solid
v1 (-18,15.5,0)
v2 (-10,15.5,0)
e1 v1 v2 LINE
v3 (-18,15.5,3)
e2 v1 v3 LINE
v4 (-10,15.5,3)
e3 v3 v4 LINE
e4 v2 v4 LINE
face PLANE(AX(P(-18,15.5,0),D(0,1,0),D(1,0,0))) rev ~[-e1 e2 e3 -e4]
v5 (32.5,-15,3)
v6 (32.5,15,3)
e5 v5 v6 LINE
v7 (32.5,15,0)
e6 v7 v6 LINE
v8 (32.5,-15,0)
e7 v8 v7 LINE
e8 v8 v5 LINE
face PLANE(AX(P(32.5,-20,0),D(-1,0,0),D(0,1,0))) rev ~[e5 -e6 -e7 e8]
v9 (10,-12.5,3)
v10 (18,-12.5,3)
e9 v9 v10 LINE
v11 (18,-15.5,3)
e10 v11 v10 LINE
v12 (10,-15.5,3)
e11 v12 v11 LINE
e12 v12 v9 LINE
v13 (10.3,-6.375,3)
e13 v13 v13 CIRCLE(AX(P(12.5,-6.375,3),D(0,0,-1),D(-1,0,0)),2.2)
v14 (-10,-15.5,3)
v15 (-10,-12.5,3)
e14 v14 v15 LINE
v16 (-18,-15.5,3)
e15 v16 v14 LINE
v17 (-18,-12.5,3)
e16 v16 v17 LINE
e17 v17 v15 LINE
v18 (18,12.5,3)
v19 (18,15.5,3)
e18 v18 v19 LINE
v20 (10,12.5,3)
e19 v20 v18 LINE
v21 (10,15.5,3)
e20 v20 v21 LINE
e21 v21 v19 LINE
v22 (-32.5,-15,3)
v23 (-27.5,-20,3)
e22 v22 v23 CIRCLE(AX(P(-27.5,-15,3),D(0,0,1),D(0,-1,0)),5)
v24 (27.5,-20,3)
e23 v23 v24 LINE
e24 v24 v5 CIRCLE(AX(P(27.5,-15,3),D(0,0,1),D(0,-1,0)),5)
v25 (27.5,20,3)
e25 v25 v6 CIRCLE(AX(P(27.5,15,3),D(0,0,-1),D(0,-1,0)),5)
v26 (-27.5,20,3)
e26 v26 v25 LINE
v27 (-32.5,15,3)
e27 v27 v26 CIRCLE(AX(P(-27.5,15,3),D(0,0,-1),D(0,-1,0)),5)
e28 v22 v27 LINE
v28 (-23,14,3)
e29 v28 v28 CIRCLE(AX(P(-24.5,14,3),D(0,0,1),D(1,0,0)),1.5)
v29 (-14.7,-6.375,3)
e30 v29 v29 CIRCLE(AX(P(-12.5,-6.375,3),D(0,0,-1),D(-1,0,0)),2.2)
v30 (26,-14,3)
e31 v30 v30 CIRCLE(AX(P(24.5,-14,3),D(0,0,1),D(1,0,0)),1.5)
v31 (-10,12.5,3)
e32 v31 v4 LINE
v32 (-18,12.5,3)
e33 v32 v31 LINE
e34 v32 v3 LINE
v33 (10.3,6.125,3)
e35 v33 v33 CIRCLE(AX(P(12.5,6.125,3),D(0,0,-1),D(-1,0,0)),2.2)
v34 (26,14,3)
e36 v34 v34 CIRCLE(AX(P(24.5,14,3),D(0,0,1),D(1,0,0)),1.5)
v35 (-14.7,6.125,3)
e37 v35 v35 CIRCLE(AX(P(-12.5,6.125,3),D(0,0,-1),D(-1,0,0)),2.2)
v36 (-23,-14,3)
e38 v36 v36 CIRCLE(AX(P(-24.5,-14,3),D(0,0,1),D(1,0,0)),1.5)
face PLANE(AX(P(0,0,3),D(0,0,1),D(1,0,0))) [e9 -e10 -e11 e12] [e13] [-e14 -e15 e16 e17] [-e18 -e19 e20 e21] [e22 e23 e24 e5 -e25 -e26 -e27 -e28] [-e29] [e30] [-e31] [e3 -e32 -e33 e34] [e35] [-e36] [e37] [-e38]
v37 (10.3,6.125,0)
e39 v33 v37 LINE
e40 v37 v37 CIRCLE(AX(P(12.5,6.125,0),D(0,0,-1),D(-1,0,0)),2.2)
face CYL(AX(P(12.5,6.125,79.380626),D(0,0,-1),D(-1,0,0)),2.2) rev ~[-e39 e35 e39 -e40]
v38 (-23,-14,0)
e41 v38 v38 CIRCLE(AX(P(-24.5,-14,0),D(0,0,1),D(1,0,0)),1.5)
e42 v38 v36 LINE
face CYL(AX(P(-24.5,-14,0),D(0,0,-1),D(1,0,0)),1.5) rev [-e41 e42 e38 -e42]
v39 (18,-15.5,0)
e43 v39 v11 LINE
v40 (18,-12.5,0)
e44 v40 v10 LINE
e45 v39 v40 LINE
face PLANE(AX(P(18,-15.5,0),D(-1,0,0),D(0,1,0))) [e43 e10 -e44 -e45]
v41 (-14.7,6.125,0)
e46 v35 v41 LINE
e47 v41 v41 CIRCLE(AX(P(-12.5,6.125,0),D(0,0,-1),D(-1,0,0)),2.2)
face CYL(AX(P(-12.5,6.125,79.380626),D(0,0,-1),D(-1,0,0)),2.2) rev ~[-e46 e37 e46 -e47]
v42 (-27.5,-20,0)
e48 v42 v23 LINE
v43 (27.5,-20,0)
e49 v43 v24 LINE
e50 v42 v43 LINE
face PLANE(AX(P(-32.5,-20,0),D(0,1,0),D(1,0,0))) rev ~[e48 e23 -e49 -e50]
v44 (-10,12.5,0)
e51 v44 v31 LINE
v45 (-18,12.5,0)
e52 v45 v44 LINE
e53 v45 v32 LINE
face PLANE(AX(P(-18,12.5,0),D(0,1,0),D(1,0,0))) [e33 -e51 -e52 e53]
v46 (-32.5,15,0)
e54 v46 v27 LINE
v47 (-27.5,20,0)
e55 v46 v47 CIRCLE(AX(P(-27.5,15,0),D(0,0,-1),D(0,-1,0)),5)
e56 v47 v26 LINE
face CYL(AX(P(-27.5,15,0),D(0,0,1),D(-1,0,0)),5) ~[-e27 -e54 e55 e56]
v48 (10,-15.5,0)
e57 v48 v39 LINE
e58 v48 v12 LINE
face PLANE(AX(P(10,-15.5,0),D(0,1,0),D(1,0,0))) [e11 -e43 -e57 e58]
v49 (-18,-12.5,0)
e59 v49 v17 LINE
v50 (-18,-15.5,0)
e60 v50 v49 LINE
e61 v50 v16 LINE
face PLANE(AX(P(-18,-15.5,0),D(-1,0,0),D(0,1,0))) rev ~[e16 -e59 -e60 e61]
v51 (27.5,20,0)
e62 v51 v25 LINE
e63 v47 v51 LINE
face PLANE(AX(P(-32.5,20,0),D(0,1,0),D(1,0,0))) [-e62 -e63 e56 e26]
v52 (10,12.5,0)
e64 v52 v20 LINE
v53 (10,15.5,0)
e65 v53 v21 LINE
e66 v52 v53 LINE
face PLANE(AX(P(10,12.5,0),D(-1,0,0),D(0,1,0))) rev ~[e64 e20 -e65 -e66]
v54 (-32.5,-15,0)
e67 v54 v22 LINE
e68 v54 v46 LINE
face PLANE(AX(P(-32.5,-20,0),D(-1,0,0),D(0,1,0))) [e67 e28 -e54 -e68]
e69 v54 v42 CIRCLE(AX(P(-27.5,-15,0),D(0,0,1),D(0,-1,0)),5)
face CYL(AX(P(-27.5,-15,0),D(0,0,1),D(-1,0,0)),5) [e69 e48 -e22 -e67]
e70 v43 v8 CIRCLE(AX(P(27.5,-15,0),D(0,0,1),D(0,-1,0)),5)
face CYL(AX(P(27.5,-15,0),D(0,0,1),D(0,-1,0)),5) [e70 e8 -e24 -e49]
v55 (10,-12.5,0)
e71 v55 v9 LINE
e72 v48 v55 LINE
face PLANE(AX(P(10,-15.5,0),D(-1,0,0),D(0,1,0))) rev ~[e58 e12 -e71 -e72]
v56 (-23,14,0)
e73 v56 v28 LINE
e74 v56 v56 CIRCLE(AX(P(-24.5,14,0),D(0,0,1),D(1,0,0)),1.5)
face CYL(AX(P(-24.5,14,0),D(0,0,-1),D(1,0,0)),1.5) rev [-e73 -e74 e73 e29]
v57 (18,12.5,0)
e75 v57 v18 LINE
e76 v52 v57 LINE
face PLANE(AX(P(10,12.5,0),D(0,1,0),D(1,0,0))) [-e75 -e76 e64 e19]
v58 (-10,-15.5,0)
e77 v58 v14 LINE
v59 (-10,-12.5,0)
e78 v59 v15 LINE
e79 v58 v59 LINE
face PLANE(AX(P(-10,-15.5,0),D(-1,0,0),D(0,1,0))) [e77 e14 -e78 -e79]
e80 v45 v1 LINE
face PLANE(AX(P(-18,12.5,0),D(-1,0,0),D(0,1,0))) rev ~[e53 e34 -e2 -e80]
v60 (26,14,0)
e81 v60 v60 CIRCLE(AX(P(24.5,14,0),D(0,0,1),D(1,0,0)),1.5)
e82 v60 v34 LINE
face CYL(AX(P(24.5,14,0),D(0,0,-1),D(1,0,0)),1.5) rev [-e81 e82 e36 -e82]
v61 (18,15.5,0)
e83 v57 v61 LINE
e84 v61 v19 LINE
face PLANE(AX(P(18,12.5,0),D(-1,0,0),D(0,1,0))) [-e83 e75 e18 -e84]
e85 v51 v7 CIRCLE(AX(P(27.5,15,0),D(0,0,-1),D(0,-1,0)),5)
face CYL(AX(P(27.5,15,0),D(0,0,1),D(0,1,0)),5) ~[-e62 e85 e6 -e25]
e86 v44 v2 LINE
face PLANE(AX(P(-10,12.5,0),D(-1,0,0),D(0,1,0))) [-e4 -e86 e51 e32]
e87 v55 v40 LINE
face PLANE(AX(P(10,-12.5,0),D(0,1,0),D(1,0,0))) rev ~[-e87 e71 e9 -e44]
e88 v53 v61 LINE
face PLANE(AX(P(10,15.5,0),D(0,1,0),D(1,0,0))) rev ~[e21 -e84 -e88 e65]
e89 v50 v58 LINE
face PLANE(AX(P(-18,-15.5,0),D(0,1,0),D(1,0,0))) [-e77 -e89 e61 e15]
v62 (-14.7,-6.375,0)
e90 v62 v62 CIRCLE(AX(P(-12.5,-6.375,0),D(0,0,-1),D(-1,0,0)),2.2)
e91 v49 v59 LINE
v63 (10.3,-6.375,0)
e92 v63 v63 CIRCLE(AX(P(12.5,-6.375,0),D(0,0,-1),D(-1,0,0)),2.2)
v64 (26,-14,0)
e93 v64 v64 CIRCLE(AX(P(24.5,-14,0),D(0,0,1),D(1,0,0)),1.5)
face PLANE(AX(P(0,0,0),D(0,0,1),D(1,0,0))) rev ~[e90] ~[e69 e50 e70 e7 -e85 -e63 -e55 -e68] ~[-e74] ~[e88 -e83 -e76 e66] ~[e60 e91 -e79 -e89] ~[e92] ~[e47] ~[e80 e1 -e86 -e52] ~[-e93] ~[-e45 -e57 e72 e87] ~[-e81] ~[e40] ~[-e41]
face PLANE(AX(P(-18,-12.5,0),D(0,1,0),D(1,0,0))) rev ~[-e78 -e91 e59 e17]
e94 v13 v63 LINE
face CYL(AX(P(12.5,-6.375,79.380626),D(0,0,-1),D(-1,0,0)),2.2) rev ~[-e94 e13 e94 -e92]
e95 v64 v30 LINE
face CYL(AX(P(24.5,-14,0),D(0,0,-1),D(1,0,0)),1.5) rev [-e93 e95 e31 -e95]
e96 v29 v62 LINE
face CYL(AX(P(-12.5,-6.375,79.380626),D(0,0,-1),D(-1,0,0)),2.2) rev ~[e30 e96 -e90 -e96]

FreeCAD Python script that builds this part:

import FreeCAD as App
import Part
import Sketcher

V = App.Vector


def edges_at(feature, points):
    """Names of the edges that pass closest to the given points."""
    edges = feature.Shape.Edges
    near = lambda p: min(range(len(edges)), key=lambda i: edges[i].distToShape(Part.Vertex(*p))[0])
    return sorted({f"Edge{near(p) + 1}" for p in points})


def add_polygon(sketch, points):
    """Adds a closed chain of lines whose ends are joined by coincident constraints."""
    first, n = sketch.GeometryCount, len(points)
    for a, b in zip(points, points[1:] + points[:1]):
        sketch.addGeometry(Part.LineSegment(App.Vector(*a, 0), App.Vector(*b, 0)), False)
    for i in range(n):
        sketch.addConstraint(Sketcher.Constraint("Coincident", first + i, 2, first + (i + 1) % n, 1))

doc = App.newDocument("Part")
params = doc.addObject("Spreadsheet::Sheet", "Params")
for row, (alias, value) in enumerate([
    ("sketch1_diameter", "3 mm"),
    ("sketch1_width", "65 mm"),
    ("sketch1_width2", "8 mm"),
    ("sketch1_height", "40 mm"),
    ("sketch1_height2", "3 mm"),
    ("pad1_length", "3 mm"),
    ("fillet_radius", "5 mm"),
    ("sketch2_diameter", "4.4 mm"),
    ("hole_diameter", "4.4 mm"),
], start=1):
    params.set(f"A{row}", alias)
    params.set(f"B{row}", "=" + value)
    params.setAlias(f"B{row}", alias)

body = doc.addObject("PartDesign::Body", "Body")

# Sketch on XY plane
sketch1 = body.newObject("Sketcher::SketchObject", "Sketch")
sketch1.AttachmentSupport = (doc.getObject("XY_Plane"), [""])
sketch1.MapMode = "FlatFace"
add_polygon(sketch1, [(-32.5, 20), (-32.5, -20), (32.5, -20), (32.5, 20)])  # lines 0-3
sketch1.addGeometry(Part.Circle(V(-24.5, -14, 0), V(0, 0, 1), 1.5), False)  # 4
add_polygon(sketch1, [(-10, -15.5), (-18, -15.5), (-18, -12.5), (-10, -12.5)])  # lines 5-8
add_polygon(sketch1, [(18, -15.5), (10, -15.5), (10, -12.5), (18, -12.5)])  # lines 9-12
sketch1.addGeometry(Part.Circle(V(24.5, -14, 0), V(0, 0, 1), 1.5), False)  # 13
sketch1.addGeometry(Part.Circle(V(-24.5, 14, 0), V(0, 0, 1), 1.5), False)  # 14
add_polygon(sketch1, [(-10, 12.5), (-18, 12.5), (-18, 15.5), (-10, 15.5)])  # lines 15-18
add_polygon(sketch1, [(18, 12.5), (10, 12.5), (10, 15.5), (18, 15.5)])  # lines 19-22
sketch1.addGeometry(Part.Circle(V(24.5, 14, 0), V(0, 0, 1), 1.5), False)  # 23
sketch1.addConstraint(Sketcher.Constraint("Vertical", 0))
sketch1.addConstraint(Sketcher.Constraint("Horizontal", 1))
sketch1.addConstraint(Sketcher.Constraint("Vertical", 2))
sketch1.addConstraint(Sketcher.Constraint("Horizontal", 3))
sketch1.addConstraint(Sketcher.Constraint("Horizontal", 5))
sketch1.addConstraint(Sketcher.Constraint("Vertical", 6))
sketch1.addConstraint(Sketcher.Constraint("Horizontal", 7))
sketch1.addConstraint(Sketcher.Constraint("Vertical", 8))
sketch1.addConstraint(Sketcher.Constraint("Horizontal", 9))
sketch1.addConstraint(Sketcher.Constraint("Vertical", 10))
sketch1.addConstraint(Sketcher.Constraint("Horizontal", 11))
sketch1.addConstraint(Sketcher.Constraint("Vertical", 12))
sketch1.addConstraint(Sketcher.Constraint("Horizontal", 15))
sketch1.addConstraint(Sketcher.Constraint("Vertical", 16))
sketch1.addConstraint(Sketcher.Constraint("Horizontal", 17))
sketch1.addConstraint(Sketcher.Constraint("Vertical", 18))
sketch1.addConstraint(Sketcher.Constraint("Horizontal", 19))
sketch1.addConstraint(Sketcher.Constraint("Vertical", 20))
sketch1.addConstraint(Sketcher.Constraint("Horizontal", 21))
sketch1.addConstraint(Sketcher.Constraint("Vertical", 22))
sketch1.addConstraint(Sketcher.Constraint("Equal", 4, 13))
sketch1.addConstraint(Sketcher.Constraint("Equal", 13, 14))
sketch1.addConstraint(Sketcher.Constraint("Equal", 14, 23))
sketch1.addConstraint(Sketcher.Constraint("Symmetric", 13, 3, 14, 3, -1, 1))
sketch1.addConstraint(Sketcher.Constraint("Symmetric", 4, 3, 23, 3, -1, 1))
sketch1.addConstraint(Sketcher.Constraint("Symmetric", 0, 2, 2, 2, -1, 1))
sketch1.addConstraint(Sketcher.Constraint("Symmetric", 11, 2, 15, 2, -1, 1))
sketch1.addConstraint(Sketcher.Constraint("Symmetric", 9, 2, 17, 2, -1, 1))
sketch1.addConstraint(Sketcher.Constraint("Symmetric", 7, 2, 19, 2, -1, 1))
sketch1.addConstraint(Sketcher.Constraint("Symmetric", 5, 2, 21, 2, -1, 1))
sketch1.addConstraint(Sketcher.Constraint("Symmetric", 4, 3, 13, 3, -2))
sketch1.addConstraint(Sketcher.Constraint("Symmetric", 8, 2, 9, 2, -2))
sketch1.addConstraint(Sketcher.Constraint("Symmetric", 6, 2, 11, 2, -2))
sketch1.addConstraint(Sketcher.Constraint("Diameter", 4, 3.0))
sketch1.addConstraint(Sketcher.Constraint("DistanceX", 1, 1, 1, 2, 65.0))
sketch1.addConstraint(Sketcher.Constraint("DistanceX", 5, 2, 5, 1, 8.0))
sketch1.addConstraint(Sketcher.Constraint("DistanceY", 0, 2, 0, 1, 40.0))
sketch1.addConstraint(Sketcher.Constraint("DistanceY", 6, 1, 6, 2, 3.0))
sketch1.addConstraint(Sketcher.Constraint("DistanceY", 4, 3, -1, 1, 14.0))
sketch1.addConstraint(Sketcher.Constraint("DistanceX", 5, 2, -1, 1, 18.0))
sketch1.addConstraint(Sketcher.Constraint("DistanceX", 4, 3, 13, 3, 49.0))
sketch1.addConstraint(Sketcher.Constraint("DistanceY", 6, 2, 15, 2, 25.0))
sketch1.setExpression("Constraints[53]", "Params.sketch1_diameter")
sketch1.setExpression("Constraints[54]", "Params.sketch1_width")
sketch1.setExpression("Constraints[55]", "Params.sketch1_width2")
sketch1.setExpression("Constraints[56]", "Params.sketch1_height")
sketch1.setExpression("Constraints[57]", "Params.sketch1_height2")
pad1 = body.newObject("PartDesign::Pad", "Pad")
pad1.Profile = sketch1
pad1.setExpression("Length", "Params.pad1_length")
doc.recompute()

fillet = body.newObject("PartDesign::Fillet", "Fillet")
fillet.Base = (pad1, edges_at(pad1, [
    (-32.5, -20, 1.5),
    (-32.5, 20, 1.5),
    (32.5, -20, 1.5),
    (32.5, 20, 1.5),
]))
fillet.setExpression("Radius", "Params.fillet_radius")

# Sketch on XY plane
sketch2 = body.newObject("Sketcher::SketchObject", "Sketch001")
sketch2.AttachmentSupport = (doc.getObject("XY_Plane"), [""])
sketch2.MapMode = "FlatFace"
sketch2.AttachmentOffset = App.Placement(V(0, 0, 3), App.Rotation())
sketch2.addGeometry(Part.Circle(V(-12.5, 6.1, 0), V(0, 0, 1), 2.2), False)
sketch2.addGeometry(Part.Circle(V(-12.5, -6.4, 0), V(0, 0, 1), 2.2), False)
sketch2.addGeometry(Part.Circle(V(12.5, 6.1, 0), V(0, 0, 1), 2.2), False)
sketch2.addGeometry(Part.Circle(V(12.5, -6.4, 0), V(0, 0, 1), 2.2), False)
sketch2.addConstraint(Sketcher.Constraint("Equal", 0, 1))
sketch2.addConstraint(Sketcher.Constraint("Equal", 1, 2))
sketch2.addConstraint(Sketcher.Constraint("Equal", 2, 3))
sketch2.addConstraint(Sketcher.Constraint("Symmetric", 0, 3, 2, 3, -2))
sketch2.addConstraint(Sketcher.Constraint("Symmetric", 1, 3, 3, 3, -2))
sketch2.addConstraint(Sketcher.Constraint("Vertical", 0, 3, 1, 3))
sketch2.addConstraint(Sketcher.Constraint("Diameter", 0, 4.4))
sketch2.addConstraint(Sketcher.Constraint("DistanceX", 0, 3, 2, 3, 25.0))
sketch2.addConstraint(Sketcher.Constraint("DistanceY", 1, 3, 0, 3, 12.5))
sketch2.addConstraint(Sketcher.Constraint("DistanceY", -1, 1, 0, 3, 6.125))
sketch2.setExpression("Constraints[6]", "Params.sketch2_diameter")
doc.recompute()
hole = body.newObject("PartDesign::Hole", "Hole")
hole.Profile = sketch2
hole.ThreadType = "None"
hole.setExpression("Diameter", "Params.hole_diameter")
hole.DepthType = "ThroughAll"

doc.recompute()
